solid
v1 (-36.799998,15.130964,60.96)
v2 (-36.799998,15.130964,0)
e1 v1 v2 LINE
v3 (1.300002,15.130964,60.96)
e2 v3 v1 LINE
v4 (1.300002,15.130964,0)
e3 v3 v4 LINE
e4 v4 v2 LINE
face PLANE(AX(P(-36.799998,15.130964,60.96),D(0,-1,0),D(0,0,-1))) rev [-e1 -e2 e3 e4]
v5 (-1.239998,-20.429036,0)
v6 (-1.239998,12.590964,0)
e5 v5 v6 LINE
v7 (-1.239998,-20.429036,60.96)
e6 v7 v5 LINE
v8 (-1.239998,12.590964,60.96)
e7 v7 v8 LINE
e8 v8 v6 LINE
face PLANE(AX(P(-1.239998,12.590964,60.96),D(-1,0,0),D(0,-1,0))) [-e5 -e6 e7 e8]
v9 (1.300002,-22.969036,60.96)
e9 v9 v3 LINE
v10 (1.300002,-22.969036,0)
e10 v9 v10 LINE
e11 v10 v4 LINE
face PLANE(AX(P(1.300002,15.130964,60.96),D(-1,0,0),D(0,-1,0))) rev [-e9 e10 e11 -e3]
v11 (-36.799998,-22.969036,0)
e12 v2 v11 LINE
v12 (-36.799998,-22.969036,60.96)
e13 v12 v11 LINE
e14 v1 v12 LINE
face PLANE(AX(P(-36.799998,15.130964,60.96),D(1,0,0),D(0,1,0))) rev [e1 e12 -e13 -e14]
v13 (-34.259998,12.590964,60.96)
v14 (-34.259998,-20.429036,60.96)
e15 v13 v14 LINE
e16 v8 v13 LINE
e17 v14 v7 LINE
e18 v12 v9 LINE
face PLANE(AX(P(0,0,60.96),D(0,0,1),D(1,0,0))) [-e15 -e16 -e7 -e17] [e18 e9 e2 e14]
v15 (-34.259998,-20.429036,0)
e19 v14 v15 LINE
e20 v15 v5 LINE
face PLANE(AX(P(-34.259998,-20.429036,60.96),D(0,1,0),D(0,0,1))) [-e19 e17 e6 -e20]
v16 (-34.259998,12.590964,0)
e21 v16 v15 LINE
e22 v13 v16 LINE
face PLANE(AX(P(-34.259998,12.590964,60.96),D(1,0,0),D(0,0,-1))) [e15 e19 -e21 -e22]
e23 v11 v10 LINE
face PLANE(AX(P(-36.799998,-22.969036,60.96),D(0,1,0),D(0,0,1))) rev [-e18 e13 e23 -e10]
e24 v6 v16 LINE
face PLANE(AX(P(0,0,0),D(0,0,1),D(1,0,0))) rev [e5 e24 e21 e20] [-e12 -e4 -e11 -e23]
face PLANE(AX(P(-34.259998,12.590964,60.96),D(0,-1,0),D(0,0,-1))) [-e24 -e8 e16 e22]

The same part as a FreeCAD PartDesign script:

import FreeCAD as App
import Part
import Sketcher
Q = App.Units.Quantity

doc = App.newDocument("Part")
body = doc.addObject("PartDesign::Body", "Body")

sketch1 = body.newObject("Sketcher::SketchObject", "Sketch")
sketch1.AttachmentSupport = (doc.getObject("XY_Plane"), [""])
sketch1.MapMode = "FlatFace"
sketch1.addGeometry([
    Part.LineSegment(App.Vector(-37, 15, 0), App.Vector(-37, -23, 0)),
    Part.LineSegment(App.Vector(-37, -23, 0), App.Vector(1, -23, 0)),
    Part.LineSegment(App.Vector(1, -23, 0), App.Vector(1, 15, 0)),
    Part.LineSegment(App.Vector(1, 15, 0), App.Vector(-37, 15, 0)),
    Part.LineSegment(App.Vector(-1, -20, 0), App.Vector(-34, -20, 0)),
    Part.LineSegment(App.Vector(-34, -20, 0), App.Vector(-34, 13, 0)),
    Part.LineSegment(App.Vector(-34, 13, 0), App.Vector(-1, 13, 0)),
    Part.LineSegment(App.Vector(-1, 13, 0), App.Vector(-1, -20, 0)),
], False)
sketch1.addConstraint([
    Sketcher.Constraint("Coincident", 0, 2, 1, 1),
    Sketcher.Constraint("Coincident", 1, 2, 2, 1),
    Sketcher.Constraint("Coincident", 2, 2, 3, 1),
    Sketcher.Constraint("Coincident", 3, 2, 0, 1),
    Sketcher.Constraint("Coincident", 4, 2, 5, 1),
    Sketcher.Constraint("Coincident", 5, 2, 6, 1),
    Sketcher.Constraint("Coincident", 6, 2, 7, 1),
    Sketcher.Constraint("Coincident", 7, 2, 4, 1),
    Sketcher.Constraint("Vertical", 0),
    Sketcher.Constraint("Horizontal", 1),
    Sketcher.Constraint("Vertical", 2),
    Sketcher.Constraint("Horizontal", 3),
    Sketcher.Constraint("Horizontal", 4),
    Sketcher.Constraint("Vertical", 5),
    Sketcher.Constraint("Horizontal", 6),
    Sketcher.Constraint("Vertical", 7),
    Sketcher.Constraint("Equal", 3, 0),
    Sketcher.Constraint("Equal", 6, 5),
    Sketcher.Constraint("DistanceX", 1, 1, 1, 2, Q("1.5 in")),
    Sketcher.Constraint("DistanceX", 4, 2, 4, 1, Q("1.3 in")),
    Sketcher.Constraint("DistanceX", 0, 2, 4, 2, Q("0.1 in")),
    Sketcher.Constraint("DistanceY", 0, 2, 4, 2, Q("0.1 in")),
    Sketcher.Constraint("DistanceX", 0, 2, -1, 1, 36.799998),
    Sketcher.Constraint("DistanceY", 0, 2, -1, 1, 22.969036),
])
pad1 = body.newObject("PartDesign::Pad", "Pad")
pad1.Profile = sketch1
pad1.Length = Q("2.4 in")

doc.recompute()
